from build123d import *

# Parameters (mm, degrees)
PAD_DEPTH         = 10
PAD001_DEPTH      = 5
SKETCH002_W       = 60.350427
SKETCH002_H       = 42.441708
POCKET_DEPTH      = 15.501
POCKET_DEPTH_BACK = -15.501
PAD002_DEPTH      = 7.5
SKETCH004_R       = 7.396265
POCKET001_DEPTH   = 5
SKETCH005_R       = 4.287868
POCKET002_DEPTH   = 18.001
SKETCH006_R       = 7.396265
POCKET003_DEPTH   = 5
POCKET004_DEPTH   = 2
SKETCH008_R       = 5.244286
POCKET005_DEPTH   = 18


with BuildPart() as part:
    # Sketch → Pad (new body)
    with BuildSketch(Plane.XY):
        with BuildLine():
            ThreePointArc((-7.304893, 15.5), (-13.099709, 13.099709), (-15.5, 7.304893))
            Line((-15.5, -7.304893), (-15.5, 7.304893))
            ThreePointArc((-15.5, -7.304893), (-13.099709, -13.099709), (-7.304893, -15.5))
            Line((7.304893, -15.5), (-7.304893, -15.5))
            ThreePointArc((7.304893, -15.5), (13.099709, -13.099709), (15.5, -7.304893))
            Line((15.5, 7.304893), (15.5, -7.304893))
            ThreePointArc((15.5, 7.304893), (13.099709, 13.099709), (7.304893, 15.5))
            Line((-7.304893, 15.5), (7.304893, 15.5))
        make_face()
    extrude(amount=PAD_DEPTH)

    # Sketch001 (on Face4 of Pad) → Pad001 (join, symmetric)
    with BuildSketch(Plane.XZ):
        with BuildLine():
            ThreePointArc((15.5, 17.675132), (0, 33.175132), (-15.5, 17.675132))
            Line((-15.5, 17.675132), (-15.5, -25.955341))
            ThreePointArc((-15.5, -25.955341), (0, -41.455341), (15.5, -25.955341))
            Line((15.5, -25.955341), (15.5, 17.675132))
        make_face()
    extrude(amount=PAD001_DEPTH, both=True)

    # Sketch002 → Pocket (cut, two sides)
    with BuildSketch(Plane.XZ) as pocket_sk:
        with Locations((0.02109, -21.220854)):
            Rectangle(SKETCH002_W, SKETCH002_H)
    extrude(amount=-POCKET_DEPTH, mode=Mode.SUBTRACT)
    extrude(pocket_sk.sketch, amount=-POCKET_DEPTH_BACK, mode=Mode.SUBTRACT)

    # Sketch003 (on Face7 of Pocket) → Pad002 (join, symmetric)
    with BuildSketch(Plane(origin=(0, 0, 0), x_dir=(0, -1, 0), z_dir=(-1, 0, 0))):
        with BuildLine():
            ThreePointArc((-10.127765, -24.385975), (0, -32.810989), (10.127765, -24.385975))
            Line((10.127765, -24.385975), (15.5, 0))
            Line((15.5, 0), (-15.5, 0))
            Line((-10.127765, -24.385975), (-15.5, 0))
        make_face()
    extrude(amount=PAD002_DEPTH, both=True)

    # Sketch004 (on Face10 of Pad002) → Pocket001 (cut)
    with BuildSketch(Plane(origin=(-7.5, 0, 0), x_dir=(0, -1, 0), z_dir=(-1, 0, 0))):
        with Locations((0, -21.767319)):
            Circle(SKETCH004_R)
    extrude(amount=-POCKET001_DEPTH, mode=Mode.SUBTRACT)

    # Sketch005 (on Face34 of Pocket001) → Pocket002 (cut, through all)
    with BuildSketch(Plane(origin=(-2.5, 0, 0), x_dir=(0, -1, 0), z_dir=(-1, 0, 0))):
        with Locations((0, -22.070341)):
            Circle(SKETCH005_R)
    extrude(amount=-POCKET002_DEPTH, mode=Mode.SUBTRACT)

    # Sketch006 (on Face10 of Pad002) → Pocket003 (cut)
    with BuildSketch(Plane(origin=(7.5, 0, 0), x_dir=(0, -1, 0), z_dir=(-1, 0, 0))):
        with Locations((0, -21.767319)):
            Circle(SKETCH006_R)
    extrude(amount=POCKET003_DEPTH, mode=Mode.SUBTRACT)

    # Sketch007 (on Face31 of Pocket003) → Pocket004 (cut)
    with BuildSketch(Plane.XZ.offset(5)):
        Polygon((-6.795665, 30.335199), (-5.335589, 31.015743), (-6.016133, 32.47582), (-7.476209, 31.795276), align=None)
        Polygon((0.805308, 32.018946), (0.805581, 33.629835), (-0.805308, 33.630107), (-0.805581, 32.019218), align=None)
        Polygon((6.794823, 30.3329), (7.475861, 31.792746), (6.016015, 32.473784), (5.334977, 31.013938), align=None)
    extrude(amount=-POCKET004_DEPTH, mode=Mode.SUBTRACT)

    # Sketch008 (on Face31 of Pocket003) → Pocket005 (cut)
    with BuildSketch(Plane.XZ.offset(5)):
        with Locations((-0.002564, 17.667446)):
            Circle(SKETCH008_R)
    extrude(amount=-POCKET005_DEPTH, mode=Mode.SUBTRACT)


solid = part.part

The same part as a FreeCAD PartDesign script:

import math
import FreeCAD as App
import Part
import Sketcher
from FreeCAD import Vector
Q = App.Units.Quantity

doc = App.newDocument("Part")
params = doc.addObject("Spreadsheet::Sheet", "Params")
for row, (alias, value) in enumerate([
    ("pad1_length", "10 mm"),
    ("sketch2_radius", "15.5 mm"),
    ("pad2_length", "10 mm"),
    ("sketch4_width", "31 mm"),
    ("pad3_length", "15 mm"),
    ("pocket2_length", "5 mm"),
    ("pocket4_length", "5 mm"),
    ("pocket5_length", "2 mm"),
    ("pocket6_length", "18 mm"),
], start=1):
    params.set(f"A{row}", alias)
    params.set(f"B{row}", "=" + value)
    params.setAlias(f"B{row}", alias)

body = doc.addObject("PartDesign::Body", "Body")

# Sketch on XY plane
sketch1 = body.newObject("Sketcher::SketchObject", "Sketch")
sketch1.AttachmentSupport = (doc.getObject("XY_Plane"), [""])
sketch1.MapMode = "FlatFace"
sketch1.addGeometry(Part.ArcOfCircle(Part.Circle(Vector(-7, 7, 0), Vector(0, 0, 1), 8), math.radians(90), math.radians(180)), False)
sketch1.addGeometry(Part.LineSegment(Vector(-16, 7, 0), Vector(-16, -7, 0)), False)
sketch1.addGeometry(Part.ArcOfCircle(Part.Circle(Vector(-7, -7, 0), Vector(0, 0, 1), 8), math.radians(180), math.radians(270)), False)
sketch1.addGeometry(Part.LineSegment(Vector(-7, -16, 0), Vector(7, -16, 0)), False)
sketch1.addGeometry(Part.ArcOfCircle(Part.Circle(Vector(7, -7, 0), Vector(0, 0, 1), 8), math.radians(-90), math.radians(0)), False)
sketch1.addGeometry(Part.LineSegment(Vector(16, -7, 0), Vector(16, 7, 0)), False)
sketch1.addGeometry(Part.ArcOfCircle(Part.Circle(Vector(7, 7, 0), Vector(0, 0, 1), 8), math.radians(0), math.radians(90)), False)
sketch1.addGeometry(Part.LineSegment(Vector(7, 16, 0), Vector(-7, 16, 0)), False)
sketch1.addConstraint(Sketcher.Constraint("Tangent", 0, 2, 1, 1))
sketch1.addConstraint(Sketcher.Constraint("Tangent", 1, 2, 2, 1))
sketch1.addConstraint(Sketcher.Constraint("Tangent", 2, 2, 3, 1))
sketch1.addConstraint(Sketcher.Constraint("Tangent", 3, 2, 4, 1))
sketch1.addConstraint(Sketcher.Constraint("Tangent", 4, 2, 5, 1))
sketch1.addConstraint(Sketcher.Constraint("Tangent", 5, 2, 6, 1))
sketch1.addConstraint(Sketcher.Constraint("Tangent", 6, 2, 7, 1))
sketch1.addConstraint(Sketcher.Constraint("Tangent", 7, 2, 0, 1))
sketch1.addConstraint(Sketcher.Constraint("Vertical", 1))
sketch1.addConstraint(Sketcher.Constraint("Horizontal", 3))
sketch1.addConstraint(Sketcher.Constraint("Vertical", 5))
sketch1.addConstraint(Sketcher.Constraint("Horizontal", 7))
sketch1.addConstraint(Sketcher.Constraint("Equal", 0, 2))
sketch1.addConstraint(Sketcher.Constraint("Equal", 2, 4))
sketch1.addConstraint(Sketcher.Constraint("Equal", 4, 6))
sketch1.addConstraint(Sketcher.Constraint("Symmetric", 0, 3, 4, 3, -1, 1))
sketch1.addConstraint(Sketcher.Constraint("Equal", 7, 1))
sketch1.addConstraint(Sketcher.Constraint("DistanceX", 0, 2, -1, 1, Q("15.5 mm")))
sketch1.addConstraint(Sketcher.Constraint("Radius", 0, Q("8.195106 mm")))
pad1 = body.newObject("PartDesign::Pad", "Pad")
pad1.Profile = sketch1
pad1.setExpression("Length", "Params.pad1_length")

# Sketch on XZ plane
sketch2 = body.newObject("Sketcher::SketchObject", "Sketch001")
sketch2.AttachmentSupport = (doc.getObject("XZ_Plane"), [""])
sketch2.MapMode = "FlatFace"
sketch2.addGeometry(Part.ArcOfCircle(Part.Circle(Vector(0, 18, 0), Vector(0, 0, 1), 16), math.radians(0), math.radians(180)), False)
sketch2.addGeometry(Part.LineSegment(Vector(-16, 18, 0), Vector(-16, -26, 0)), False)
sketch2.addGeometry(Part.ArcOfCircle(Part.Circle(Vector(0, -26, 0), Vector(0, 0, 1), 16), math.radians(180), math.radians(360)), False)
sketch2.addGeometry(Part.LineSegment(Vector(16, -26, 0), Vector(16, 18, 0)), False)
sketch2.addConstraint(Sketcher.Constraint("Tangent", 0, 2, 1, 1))
sketch2.addConstraint(Sketcher.Constraint("Tangent", 1, 2, 2, 1))
sketch2.addConstraint(Sketcher.Constraint("Tangent", 2, 2, 3, 1))
sketch2.addConstraint(Sketcher.Constraint("Tangent", 3, 2, 0, 1))
sketch2.addConstraint(Sketcher.Constraint("Vertical", 1))
sketch2.addConstraint(Sketcher.Constraint("Vertical", 3))
sketch2.addConstraint(Sketcher.Constraint("PointOnObject", 0, 3, -2))
sketch2.addConstraint(Sketcher.Constraint("Radius", 0, Q("15.5 mm")))
sketch2.addConstraint(Sketcher.Constraint("DistanceY", 1, 2, 1, 1, Q("43.630473 mm")))
sketch2.addConstraint(Sketcher.Constraint("DistanceY", 2, 3, -1, 1, Q("25.955341 mm")))
sketch2.setExpression("Constraints[7]", "Params.sketch2_radius")
pad2 = body.newObject("PartDesign::Pad", "Pad001")
pad2.Profile = sketch2
pad2.setExpression("Length", "Params.pad2_length")
pad2.Midplane = True

# Sketch on XZ plane
sketch3 = body.newObject("Sketcher::SketchObject", "Sketch002")
sketch3.AttachmentSupport = (doc.getObject("XZ_Plane"), [""])
sketch3.MapMode = "FlatFace"
sketch3.addGeometry(Part.LineSegment(Vector(-30, 0, 0), Vector(-30, -42, 0)), False)
sketch3.addGeometry(Part.LineSegment(Vector(-30, -42, 0), Vector(30, -42, 0)), False)
sketch3.addGeometry(Part.LineSegment(Vector(30, -42, 0), Vector(30, 0, 0)), False)
sketch3.addGeometry(Part.LineSegment(Vector(30, 0, 0), Vector(-30, 0, 0)), False)
sketch3.addConstraint(Sketcher.Constraint("Coincident", 0, 2, 1, 1))
sketch3.addConstraint(Sketcher.Constraint("Coincident", 1, 2, 2, 1))
sketch3.addConstraint(Sketcher.Constraint("Coincident", 2, 2, 3, 1))
sketch3.addConstraint(Sketcher.Constraint("Coincident", 3, 2, 0, 1))
sketch3.addConstraint(Sketcher.Constraint("Vertical", 0))
sketch3.addConstraint(Sketcher.Constraint("Horizontal", 1))
sketch3.addConstraint(Sketcher.Constraint("Vertical", 2))
sketch3.addConstraint(Sketcher.Constraint("Horizontal", 3))
sketch3.addConstraint(Sketcher.Constraint("PointOnObject", 2, 2, -1))
sketch3.addConstraint(Sketcher.Constraint("DistanceX", 1, 1, 1, 2, Q("60.350427 mm")))
sketch3.addConstraint(Sketcher.Constraint("DistanceY", 0, 2, 0, 1, Q("42.441708 mm")))
sketch3.addConstraint(Sketcher.Constraint("DistanceX", 0, 2, -1, 1, Q("30.154124 mm")))
pocket1 = body.newObject("PartDesign::Pocket", "Pocket")
pocket1.Profile = sketch3
pocket1.Type = "ThroughAll"
pocket1.Midplane = True

# Sketch on YZ plane
sketch4 = body.newObject("Sketcher::SketchObject", "Sketch003")
sketch4.AttachmentSupport = (doc.getObject("YZ_Plane"), [""])
sketch4.MapMode = "FlatFace"
sketch4.addGeometry(Part.ArcOfCircle(Part.Circle(Vector(0, -23, 0), Vector(0, 0, 1), 10), math.radians(-170), math.radians(-10)), False)
sketch4.addGeometry(Part.LineSegment(Vector(-10, -24, 0), Vector(-16, 0, 0)), False)
sketch4.addGeometry(Part.LineSegment(Vector(-16, 0, 0), Vector(16, 0, 0)), False)
sketch4.addGeometry(Part.LineSegment(Vector(16, 0, 0), Vector(10, -24, 0)), False)
sketch4.addConstraint(Sketcher.Constraint("Coincident", 0, 1, 1, 1))
sketch4.addConstraint(Sketcher.Constraint("Coincident", 1, 2, 2, 1))
sketch4.addConstraint(Sketcher.Constraint("Coincident", 2, 2, 3, 1))
sketch4.addConstraint(Sketcher.Constraint("Coincident", 3, 2, 0, 2))
sketch4.addConstraint(Sketcher.Constraint("Horizontal", 2))
sketch4.addConstraint(Sketcher.Constraint("Symmetric", 1, 2, 2, 2, -1, 1))
sketch4.addConstraint(Sketcher.Constraint("Symmetric", 0, 1, 3, 2, -2))
sketch4.addConstraint(Sketcher.Constraint("DistanceX", 2, 1, 2, 2, Q("31 mm")))
sketch4.addConstraint(Sketcher.Constraint("Radius", 0, Q("10.299834 mm")))
sketch4.addConstraint(Sketcher.Constraint("DistanceY", 0, 1, 0, 3, Q("1.87482 mm")))
sketch4.addConstraint(Sketcher.Constraint("Distance", 1, Q("24.970717 mm")))
sketch4.setExpression("Constraints[7]", "Params.sketch4_width")
pad3 = body.newObject("PartDesign::Pad", "Pad002")
pad3.Profile = sketch4
pad3.setExpression("Length", "Params.pad3_length")
pad3.Midplane = True

# Sketch on YZ plane
sketch5 = body.newObject("Sketcher::SketchObject", "Sketch004")
sketch5.AttachmentSupport = (doc.getObject("YZ_Plane"), [""])
sketch5.MapMode = "FlatFace"
sketch5.AttachmentOffset = App.Placement(Vector(0, 0, -7.5), App.Rotation())
sketch5.addGeometry(Part.Circle(Vector(0, -22, 0), Vector(0, 0, 1), 7), False)
sketch5.addConstraint(Sketcher.Constraint("PointOnObject", 0, 3, -2))
sketch5.addConstraint(Sketcher.Constraint("Diameter", 0, Q("14.79253 mm")))
sketch5.addConstraint(Sketcher.Constraint("DistanceY", 0, 3, -1, 1, Q("21.767319 mm")))
pocket2 = body.newObject("PartDesign::Pocket", "Pocket001")
pocket2.Profile = sketch5
pocket2.setExpression("Length", "Params.pocket2_length")
pocket2.Reversed = True

# Sketch on YZ plane
sketch6 = body.newObject("Sketcher::SketchObject", "Sketch005")
sketch6.AttachmentSupport = (doc.getObject("YZ_Plane"), [""])
sketch6.MapMode = "FlatFace"
sketch6.AttachmentOffset = App.Placement(Vector(0, 0, -2.5), App.Rotation())
sketch6.addGeometry(Part.Circle(Vector(0, -22.1, 0), Vector(0, 0, 1), 4.3), False)
sketch6.addConstraint(Sketcher.Constraint("PointOnObject", 0, 3, -2))
sketch6.addConstraint(Sketcher.Constraint("Diameter", 0, Q("8.575736 mm")))
sketch6.addConstraint(Sketcher.Constraint("DistanceY", 0, 3, -1, 1, Q("22.070341 mm")))
pocket3 = body.newObject("PartDesign::Pocket", "Pocket002")
pocket3.Profile = sketch6
pocket3.Type = "ThroughAll"
pocket3.Reversed = True

# Sketch on YZ plane
sketch7 = body.newObject("Sketcher::SketchObject", "Sketch006")
sketch7.AttachmentSupport = (doc.getObject("YZ_Plane"), [""])
sketch7.MapMode = "FlatFace"
sketch7.AttachmentOffset = App.Placement(Vector(0, 0, 7.5), App.Rotation())
sketch7.addGeometry(Part.Circle(Vector(0, -22, 0), Vector(0, 0, 1), 7), False)
sketch7.addConstraint(Sketcher.Constraint("PointOnObject", 0, 3, -2))
sketch7.addConstraint(Sketcher.Constraint("Diameter", 0, Q("14.79253 mm")))
sketch7.addConstraint(Sketcher.Constraint("DistanceY", 0, 3, -1, 1, Q("21.767319 mm")))
pocket4 = body.newObject("PartDesign::Pocket", "Pocket003")
pocket4.Profile = sketch7
pocket4.setExpression("Length", "Params.pocket4_length")

# Sketch on XZ plane
sketch8 = body.newObject("Sketcher::SketchObject", "Sketch007")
sketch8.AttachmentSupport = (doc.getObject("XZ_Plane"), [""])
sketch8.MapMode = "FlatFace"
sketch8.AttachmentOffset = App.Placement(Vector(0, 0, 5), App.Rotation())
sketch8.addGeometry(Part.LineSegment(Vector(-6.8, 30.3, 0), Vector(-5.3, 31, 0)), False)
sketch8.addGeometry(Part.LineSegment(Vector(-5.3, 31, 0), Vector(-6, 32.5, 0)), False)
sketch8.addGeometry(Part.LineSegment(Vector(-6, 32.5, 0), Vector(-7.5, 31.8, 0)), False)
sketch8.addGeometry(Part.LineSegment(Vector(-7.5, 31.8, 0), Vector(-6.8, 30.3, 0)), False)
sketch8.addGeometry(Part.LineSegment(Vector(0.8, 32, 0), Vector(0.8, 33.6, 0)), False)
sketch8.addGeometry(Part.LineSegment(Vector(0.8, 33.6, 0), Vector(-0.8, 33.6, 0)), False)
sketch8.addGeometry(Part.LineSegment(Vector(-0.8, 33.6, 0), Vector(-0.8, 32, 0)), False)
sketch8.addGeometry(Part.LineSegment(Vector(-0.8, 32, 0), Vector(0.8, 32, 0)), False)
sketch8.addGeometry(Part.LineSegment(Vector(6.8, 30.3, 0), Vector(7.5, 31.8, 0)), False)
sketch8.addGeometry(Part.LineSegment(Vector(7.5, 31.8, 0), Vector(6, 32.5, 0)), False)
sketch8.addGeometry(Part.LineSegment(Vector(6, 32.5, 0), Vector(5.3, 31, 0)), False)
sketch8.addGeometry(Part.LineSegment(Vector(5.3, 31, 0), Vector(6.8, 30.3, 0)), False)
sketch8.addConstraint(Sketcher.Constraint("Coincident", 0, 2, 1, 1))
sketch8.addConstraint(Sketcher.Constraint("Coincident", 1, 2, 2, 1))
sketch8.addConstraint(Sketcher.Constraint("Coincident", 2, 2, 3, 1))
sketch8.addConstraint(Sketcher.Constraint("Coincident", 3, 2, 0, 1))
sketch8.addConstraint(Sketcher.Constraint("Coincident", 4, 2, 5, 1))
sketch8.addConstraint(Sketcher.Constraint("Coincident", 5, 2, 6, 1))
sketch8.addConstraint(Sketcher.Constraint("Coincident", 6, 2, 7, 1))
sketch8.addConstraint(Sketcher.Constraint("Coincident", 7, 2, 4, 1))
sketch8.addConstraint(Sketcher.Constraint("Coincident", 8, 2, 9, 1))
sketch8.addConstraint(Sketcher.Constraint("Coincident", 9, 2, 10, 1))
sketch8.addConstraint(Sketcher.Constraint("Coincident", 10, 2, 11, 1))
sketch8.addConstraint(Sketcher.Constraint("Coincident", 11, 2, 8, 1))
sketch8.addConstraint(Sketcher.Constraint("Perpendicular", 0, 1))
sketch8.addConstraint(Sketcher.Constraint("Perpendicular", 1, 2))
sketch8.addConstraint(Sketcher.Constraint("Perpendicular", 2, 3))
sketch8.addConstraint(Sketcher.Constraint("Perpendicular", 4, 5))
sketch8.addConstraint(Sketcher.Constraint("Perpendicular", 5, 6))
sketch8.addConstraint(Sketcher.Constraint("Perpendicular", 6, 7))
sketch8.addConstraint(Sketcher.Constraint("Perpendicular", 8, 9))
sketch8.addConstraint(Sketcher.Constraint("Perpendicular", 9, 10))
sketch8.addConstraint(Sketcher.Constraint("Perpendicular", 10, 11))
sketch8.addConstraint(Sketcher.Constraint("Equal", 0, 1))
sketch8.addConstraint(Sketcher.Constraint("Equal", 3, 4))
sketch8.addConstraint(Sketcher.Constraint("Equal", 4, 5))
sketch8.addConstraint(Sketcher.Constraint("Equal", 7, 8))
sketch8.addConstraint(Sketcher.Constraint("Equal", 8, 9))
sketch8.addConstraint(Sketcher.Constraint("DistanceY", -1, 1, 3, 2, Q("30.335199 mm")))
sketch8.addConstraint(Sketcher.Constraint("DistanceY", -1, 1, 11, 2, Q("30.3329 mm")))
sketch8.addConstraint(Sketcher.Constraint("DistanceX", 2, 2, 5, 2, Q("6.670901 mm")))
sketch8.addConstraint(Sketcher.Constraint("DistanceY", 6, 2, 1, 2, Q("0.456602 mm")))
sketch8.addConstraint(Sketcher.Constraint("DistanceY", 8, 2, 7, 2, Q("0.2262 mm")))
sketch8.addConstraint(Sketcher.Constraint("Distance", 0, Q("1.610889 mm")))
sketch8.addConstraint(Sketcher.Constraint("DistanceX", 0, 2, -1, 1, Q("5.335589 mm")))
sketch8.addConstraint(Sketcher.Constraint("DistanceY", -1, 1, 1, 2, Q("32.47582 mm")))
sketch8.addConstraint(Sketcher.Constraint("DistanceX", 6, 2, -1, 1, Q("0.805581 mm")))
sketch8.addConstraint(Sketcher.Constraint("DistanceX", -1, 1, 8, 2, Q("7.475861 mm")))
pocket5 = body.newObject("PartDesign::Pocket", "Pocket004")
pocket5.Profile = sketch8
pocket5.setExpression("Length", "Params.pocket5_length")

# Sketch on XZ plane
sketch9 = body.newObject("Sketcher::SketchObject", "Sketch008")
sketch9.AttachmentSupport = (doc.getObject("XZ_Plane"), [""])
sketch9.MapMode = "FlatFace"
sketch9.AttachmentOffset = App.Placement(Vector(0, 0, 5), App.Rotation())
sketch9.addGeometry(Part.Circle(Vector(0, 18, 0), Vector(0, 0, 1), 5), False)
sketch9.addConstraint(Sketcher.Constraint("Diameter", 0, Q("10.488572 mm")))
sketch9.addConstraint(Sketcher.Constraint("DistanceX", 0, 3, -1, 1, Q("0.002564 mm")))
sketch9.addConstraint(Sketcher.Constraint("DistanceY", -1, 1, 0, 3, Q("17.667446 mm")))
pocket6 = body.newObject("PartDesign::Pocket", "Pocket005")
pocket6.Profile = sketch9
pocket6.setExpression("Length", "Params.pocket6_length")

doc.recompute()
